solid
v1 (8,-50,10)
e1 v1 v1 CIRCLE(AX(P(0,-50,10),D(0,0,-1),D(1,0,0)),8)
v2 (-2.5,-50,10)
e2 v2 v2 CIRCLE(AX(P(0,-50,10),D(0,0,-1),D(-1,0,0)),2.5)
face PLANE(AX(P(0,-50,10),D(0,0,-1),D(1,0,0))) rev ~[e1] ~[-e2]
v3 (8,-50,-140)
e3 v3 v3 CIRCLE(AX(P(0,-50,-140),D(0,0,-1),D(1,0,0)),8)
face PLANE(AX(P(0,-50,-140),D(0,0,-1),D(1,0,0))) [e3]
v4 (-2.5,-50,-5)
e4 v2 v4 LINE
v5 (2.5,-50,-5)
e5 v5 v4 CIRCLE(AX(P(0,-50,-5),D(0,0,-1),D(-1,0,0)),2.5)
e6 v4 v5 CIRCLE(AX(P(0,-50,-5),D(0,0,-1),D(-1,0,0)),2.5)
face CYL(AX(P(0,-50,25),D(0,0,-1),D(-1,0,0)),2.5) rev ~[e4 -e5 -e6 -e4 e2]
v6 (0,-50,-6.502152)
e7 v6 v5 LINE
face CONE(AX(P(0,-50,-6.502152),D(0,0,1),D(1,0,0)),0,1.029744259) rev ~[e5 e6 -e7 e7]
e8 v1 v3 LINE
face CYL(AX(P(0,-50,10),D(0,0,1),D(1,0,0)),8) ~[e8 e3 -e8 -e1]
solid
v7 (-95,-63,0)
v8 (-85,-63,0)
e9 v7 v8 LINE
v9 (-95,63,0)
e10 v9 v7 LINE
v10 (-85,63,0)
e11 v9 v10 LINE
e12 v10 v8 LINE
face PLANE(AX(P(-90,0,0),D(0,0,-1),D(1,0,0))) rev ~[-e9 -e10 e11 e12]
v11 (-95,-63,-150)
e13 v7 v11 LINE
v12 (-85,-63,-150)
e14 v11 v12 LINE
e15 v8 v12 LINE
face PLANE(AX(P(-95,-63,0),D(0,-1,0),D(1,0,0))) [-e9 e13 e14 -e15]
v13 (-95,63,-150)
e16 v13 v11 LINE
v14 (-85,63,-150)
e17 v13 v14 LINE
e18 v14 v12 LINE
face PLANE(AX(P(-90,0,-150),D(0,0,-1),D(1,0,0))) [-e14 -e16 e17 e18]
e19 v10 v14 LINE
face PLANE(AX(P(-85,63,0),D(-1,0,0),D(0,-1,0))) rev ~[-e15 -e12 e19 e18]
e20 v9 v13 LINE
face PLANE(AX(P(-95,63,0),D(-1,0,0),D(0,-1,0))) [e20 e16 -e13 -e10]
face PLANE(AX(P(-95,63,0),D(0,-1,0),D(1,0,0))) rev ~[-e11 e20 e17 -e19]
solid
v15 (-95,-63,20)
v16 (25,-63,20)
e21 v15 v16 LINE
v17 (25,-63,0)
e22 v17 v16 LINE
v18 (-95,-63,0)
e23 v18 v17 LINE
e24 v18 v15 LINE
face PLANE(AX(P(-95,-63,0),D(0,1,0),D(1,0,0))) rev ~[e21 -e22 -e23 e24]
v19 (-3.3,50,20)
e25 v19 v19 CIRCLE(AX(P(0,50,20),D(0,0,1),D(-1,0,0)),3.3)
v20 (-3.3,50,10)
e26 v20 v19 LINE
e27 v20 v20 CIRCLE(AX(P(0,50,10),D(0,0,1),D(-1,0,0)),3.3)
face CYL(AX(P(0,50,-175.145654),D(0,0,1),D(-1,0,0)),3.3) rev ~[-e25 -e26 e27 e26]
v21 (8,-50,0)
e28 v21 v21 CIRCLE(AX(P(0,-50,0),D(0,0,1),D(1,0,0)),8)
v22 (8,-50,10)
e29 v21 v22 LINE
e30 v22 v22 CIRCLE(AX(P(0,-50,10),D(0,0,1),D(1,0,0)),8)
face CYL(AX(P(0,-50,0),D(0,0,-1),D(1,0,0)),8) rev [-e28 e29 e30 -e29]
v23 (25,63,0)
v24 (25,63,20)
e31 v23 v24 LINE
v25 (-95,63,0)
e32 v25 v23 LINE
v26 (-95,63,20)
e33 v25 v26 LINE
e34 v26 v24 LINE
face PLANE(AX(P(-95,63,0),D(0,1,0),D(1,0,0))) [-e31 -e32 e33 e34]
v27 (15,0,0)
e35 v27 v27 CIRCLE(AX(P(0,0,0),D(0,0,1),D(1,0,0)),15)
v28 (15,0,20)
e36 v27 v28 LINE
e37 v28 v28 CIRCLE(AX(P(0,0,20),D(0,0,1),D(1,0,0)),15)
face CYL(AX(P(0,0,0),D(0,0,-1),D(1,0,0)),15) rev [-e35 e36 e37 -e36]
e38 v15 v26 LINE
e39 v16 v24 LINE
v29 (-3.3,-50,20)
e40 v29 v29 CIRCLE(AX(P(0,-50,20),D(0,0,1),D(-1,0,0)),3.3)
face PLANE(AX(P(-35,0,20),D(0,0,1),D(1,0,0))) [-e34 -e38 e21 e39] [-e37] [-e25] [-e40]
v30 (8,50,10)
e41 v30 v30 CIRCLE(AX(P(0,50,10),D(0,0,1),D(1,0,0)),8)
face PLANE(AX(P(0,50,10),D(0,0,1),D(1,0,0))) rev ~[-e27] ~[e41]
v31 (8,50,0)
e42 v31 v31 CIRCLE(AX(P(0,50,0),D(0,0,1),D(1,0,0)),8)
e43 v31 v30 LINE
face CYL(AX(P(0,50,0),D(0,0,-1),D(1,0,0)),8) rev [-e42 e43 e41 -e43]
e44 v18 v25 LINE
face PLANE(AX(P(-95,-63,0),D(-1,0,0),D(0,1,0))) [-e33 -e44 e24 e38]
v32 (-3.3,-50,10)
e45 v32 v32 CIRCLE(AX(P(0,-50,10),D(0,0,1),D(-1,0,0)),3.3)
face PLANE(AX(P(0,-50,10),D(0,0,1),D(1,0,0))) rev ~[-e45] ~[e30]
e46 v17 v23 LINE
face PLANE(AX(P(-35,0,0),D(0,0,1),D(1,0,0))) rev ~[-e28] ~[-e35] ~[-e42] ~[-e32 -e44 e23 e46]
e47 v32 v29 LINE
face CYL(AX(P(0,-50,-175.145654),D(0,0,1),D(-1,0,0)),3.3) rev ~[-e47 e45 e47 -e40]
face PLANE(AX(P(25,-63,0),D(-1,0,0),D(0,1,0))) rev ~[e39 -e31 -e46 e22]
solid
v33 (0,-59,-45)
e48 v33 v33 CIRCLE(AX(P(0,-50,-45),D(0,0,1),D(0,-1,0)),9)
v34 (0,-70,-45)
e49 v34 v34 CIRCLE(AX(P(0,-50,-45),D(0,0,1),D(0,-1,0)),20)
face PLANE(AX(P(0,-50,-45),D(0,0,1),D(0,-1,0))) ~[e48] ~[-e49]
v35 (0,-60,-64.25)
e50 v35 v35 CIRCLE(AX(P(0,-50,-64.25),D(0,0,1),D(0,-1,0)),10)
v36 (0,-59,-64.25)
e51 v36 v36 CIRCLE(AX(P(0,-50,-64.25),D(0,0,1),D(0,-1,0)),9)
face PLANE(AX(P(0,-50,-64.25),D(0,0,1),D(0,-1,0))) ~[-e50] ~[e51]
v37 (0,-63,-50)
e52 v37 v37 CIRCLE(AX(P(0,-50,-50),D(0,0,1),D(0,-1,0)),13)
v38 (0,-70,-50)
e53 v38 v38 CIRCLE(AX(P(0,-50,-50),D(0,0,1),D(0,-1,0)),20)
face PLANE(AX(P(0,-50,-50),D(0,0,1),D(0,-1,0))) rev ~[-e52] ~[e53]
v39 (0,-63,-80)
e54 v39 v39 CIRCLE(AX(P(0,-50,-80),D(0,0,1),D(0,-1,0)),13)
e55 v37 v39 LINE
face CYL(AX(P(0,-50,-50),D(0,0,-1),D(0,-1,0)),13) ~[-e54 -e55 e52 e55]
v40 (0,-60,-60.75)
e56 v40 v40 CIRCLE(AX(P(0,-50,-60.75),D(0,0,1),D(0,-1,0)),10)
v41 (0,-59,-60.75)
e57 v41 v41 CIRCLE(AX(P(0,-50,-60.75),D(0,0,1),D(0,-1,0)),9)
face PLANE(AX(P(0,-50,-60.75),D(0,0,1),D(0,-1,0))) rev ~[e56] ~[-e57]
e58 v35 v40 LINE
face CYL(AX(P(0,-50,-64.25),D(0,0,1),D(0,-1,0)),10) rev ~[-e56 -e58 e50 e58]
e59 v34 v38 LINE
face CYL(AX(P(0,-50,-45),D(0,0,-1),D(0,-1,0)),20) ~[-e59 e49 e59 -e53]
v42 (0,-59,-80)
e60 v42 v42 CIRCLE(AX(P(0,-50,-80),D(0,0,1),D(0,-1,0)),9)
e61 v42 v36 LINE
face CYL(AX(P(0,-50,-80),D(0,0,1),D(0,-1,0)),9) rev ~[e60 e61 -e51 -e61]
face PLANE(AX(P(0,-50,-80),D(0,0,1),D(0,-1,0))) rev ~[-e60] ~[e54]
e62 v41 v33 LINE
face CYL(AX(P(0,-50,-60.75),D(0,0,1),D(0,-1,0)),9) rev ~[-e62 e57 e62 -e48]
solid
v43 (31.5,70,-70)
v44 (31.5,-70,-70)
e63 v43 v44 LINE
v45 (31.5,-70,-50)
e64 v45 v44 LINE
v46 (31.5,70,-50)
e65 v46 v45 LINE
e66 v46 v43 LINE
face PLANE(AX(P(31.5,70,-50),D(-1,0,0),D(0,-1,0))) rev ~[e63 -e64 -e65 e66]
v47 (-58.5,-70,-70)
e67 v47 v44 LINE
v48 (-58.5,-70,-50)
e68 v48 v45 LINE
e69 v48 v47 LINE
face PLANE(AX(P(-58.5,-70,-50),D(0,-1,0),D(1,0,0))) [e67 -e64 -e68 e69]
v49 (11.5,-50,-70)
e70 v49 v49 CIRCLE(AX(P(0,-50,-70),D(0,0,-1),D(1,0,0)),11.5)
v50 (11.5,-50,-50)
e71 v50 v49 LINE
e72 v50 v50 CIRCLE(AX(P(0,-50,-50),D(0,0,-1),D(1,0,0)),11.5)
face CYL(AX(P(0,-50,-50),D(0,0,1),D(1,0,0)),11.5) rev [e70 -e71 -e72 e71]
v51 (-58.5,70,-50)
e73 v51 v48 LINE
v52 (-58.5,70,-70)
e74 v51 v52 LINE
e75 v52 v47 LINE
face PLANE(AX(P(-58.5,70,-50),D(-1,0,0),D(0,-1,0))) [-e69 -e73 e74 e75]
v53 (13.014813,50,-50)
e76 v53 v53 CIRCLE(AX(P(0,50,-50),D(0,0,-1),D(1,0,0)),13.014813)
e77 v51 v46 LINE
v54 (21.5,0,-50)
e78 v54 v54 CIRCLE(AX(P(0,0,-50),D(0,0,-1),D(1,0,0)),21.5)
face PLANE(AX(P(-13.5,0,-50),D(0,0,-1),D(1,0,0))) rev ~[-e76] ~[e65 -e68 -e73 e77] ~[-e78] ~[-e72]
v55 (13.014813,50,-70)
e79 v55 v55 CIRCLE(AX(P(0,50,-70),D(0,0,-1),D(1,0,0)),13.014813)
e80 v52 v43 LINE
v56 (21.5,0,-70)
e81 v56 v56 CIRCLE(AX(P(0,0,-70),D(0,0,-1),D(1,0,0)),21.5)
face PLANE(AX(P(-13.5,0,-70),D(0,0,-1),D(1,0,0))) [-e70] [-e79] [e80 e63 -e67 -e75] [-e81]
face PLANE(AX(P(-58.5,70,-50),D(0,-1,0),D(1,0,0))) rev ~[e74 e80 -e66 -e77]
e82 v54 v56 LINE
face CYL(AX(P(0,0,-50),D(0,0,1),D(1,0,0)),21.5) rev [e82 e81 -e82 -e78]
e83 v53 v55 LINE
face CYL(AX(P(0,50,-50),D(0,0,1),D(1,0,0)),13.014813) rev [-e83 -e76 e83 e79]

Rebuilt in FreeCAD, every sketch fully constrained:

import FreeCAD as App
import Part
import Sketcher
Q = App.Units.Quantity


def add_polygon(sketch, points):
    """Adds a closed chain of lines whose ends are joined by coincident constraints."""
    first, n = sketch.GeometryCount, len(points)
    for a, b in zip(points, points[1:] + points[:1]):
        sketch.addGeometry(Part.LineSegment(App.Vector(*a, 0), App.Vector(*b, 0)), False)
    for i in range(n):
        sketch.addConstraint(Sketcher.Constraint("Coincident", first + i, 2, first + (i + 1) % n, 1))

doc = App.newDocument("Part")
body = doc.addObject("PartDesign::Body", "Body")

# Sketch on XY plane
sketch1 = body.newObject("Sketcher::SketchObject", "Sketch")
sketch1.AttachmentSupport = (doc.getObject("XY_Plane"), [""])
sketch1.MapMode = "FlatFace"
add_polygon(sketch1, [(-95, 63), (-95, -63), (25, -63), (25, 63)])  # lines 0-3
sketch1.addGeometry(Part.Circle(App.Vector(0, 0, 0), App.Vector(0, 0, 1), 15), False)  # 4
sketch1.addConstraint(Sketcher.Constraint("Vertical", 0))
sketch1.addConstraint(Sketcher.Constraint("Horizontal", 1))
sketch1.addConstraint(Sketcher.Constraint("Vertical", 2))
sketch1.addConstraint(Sketcher.Constraint("Horizontal", 3))
sketch1.addConstraint(Sketcher.Constraint("Coincident", 4, 3, -1, 1))
sketch1.addConstraint(Sketcher.Constraint("Diameter", 4, Q("30 mm")))
sketch1.addConstraint(Sketcher.Constraint("DistanceX", 1, 1, 1, 2, Q("120 mm")))
sketch1.addConstraint(Sketcher.Constraint("DistanceY", 0, 2, 0, 1, Q("126 mm")))
sketch1.addConstraint(Sketcher.Constraint("DistanceX", 0, 2, -1, 1, Q("95 mm")))
sketch1.addConstraint(Sketcher.Constraint("DistanceY", 0, 2, -1, 1, Q("63 mm")))
pad1 = body.newObject("PartDesign::Pad", "Pad")
pad1.Profile = sketch1
pad1.Length = 20

# Sketch on XY plane
sketch2 = body.newObject("Sketcher::SketchObject", "Sketch001")
sketch2.AttachmentSupport = (doc.getObject("XY_Plane"), [""])
sketch2.MapMode = "FlatFace"
sketch2.addGeometry(Part.Circle(App.Vector(0, -50, 0), App.Vector(0, 0, 1), 8), False)
sketch2.addGeometry(Part.Circle(App.Vector(0, 50, 0), App.Vector(0, 0, 1), 8), False)
sketch2.addConstraint(Sketcher.Constraint("Equal", 0, 1))
sketch2.addConstraint(Sketcher.Constraint("Symmetric", 0, 3, 1, 3, -1, 1))
sketch2.addConstraint(Sketcher.Constraint("PointOnObject", 0, 3, -2))
sketch2.addConstraint(Sketcher.Constraint("Diameter", 0, Q("16 mm")))
sketch2.addConstraint(Sketcher.Constraint("DistanceY", 0, 3, -1, 1, Q("50 mm")))
pocket1 = body.newObject("PartDesign::Pocket", "Pocket")
pocket1.Profile = sketch2
pocket1.Length = 10
pocket1.Reversed = True

# Sketch on XY plane
sketch3 = body.newObject("Sketcher::SketchObject", "Sketch002")
sketch3.AttachmentSupport = (doc.getObject("XY_Plane"), [""])
sketch3.MapMode = "FlatFace"
sketch3.addGeometry(Part.Circle(App.Vector(0, -50, 0), App.Vector(0, 0, 1), 3.3), False)
sketch3.addGeometry(Part.Circle(App.Vector(0, 50, 0), App.Vector(0, 0, 1), 3.3), False)
sketch3.addConstraint(Sketcher.Constraint("Equal", 0, 1))
sketch3.addConstraint(Sketcher.Constraint("Symmetric", 0, 3, 1, 3, -1, 1))
sketch3.addConstraint(Sketcher.Constraint("PointOnObject", 0, 3, -2))
sketch3.addConstraint(Sketcher.Constraint("Diameter", 0, Q("6.6 mm")))
sketch3.addConstraint(Sketcher.Constraint("DistanceY", 0, 3, -1, 1, Q("50 mm")))
doc.recompute()
hole = body.newObject("PartDesign::Hole", "Hole")
hole.Profile = sketch3
hole.ThreadType = "None"
hole.Diameter = 6.6
hole.DepthType = "ThroughAll"
hole.Reversed = True
body2 = doc.addObject("PartDesign::Body", "Body001")

# Sketch on XY plane
sketch4 = body2.newObject("Sketcher::SketchObject", "Sketch003")
sketch4.AttachmentSupport = (doc.getObject("XY_Plane001"), [""])
sketch4.MapMode = "FlatFace"
sketch4.AttachmentOffset = App.Placement(App.Vector(0, 0, 10), App.Rotation())
sketch4.addGeometry(Part.Circle(App.Vector(0, -50, 0), App.Vector(0, 0, 1), 8), False)
sketch4.addConstraint(Sketcher.Constraint("PointOnObject", 0, 3, -2))
sketch4.addConstraint(Sketcher.Constraint("Diameter", 0, Q("16 mm")))
sketch4.addConstraint(Sketcher.Constraint("DistanceY", 0, 3, -1, 1, Q("50 mm")))
pad2 = body2.newObject("PartDesign::Pad", "Pad001")
pad2.Profile = sketch4
pad2.Length = 150
pad2.Reversed = True

# Sketch on XY plane
sketch5 = body2.newObject("Sketcher::SketchObject", "Sketch004")
sketch5.AttachmentSupport = (doc.getObject("XY_Plane001"), [""])
sketch5.MapMode = "FlatFace"
sketch5.AttachmentOffset = App.Placement(App.Vector(0, 0, 10), App.Rotation())
sketch5.addGeometry(Part.Circle(App.Vector(0, -50, 0), App.Vector(0, 0, 1), 2.5), False)
sketch5.addConstraint(Sketcher.Constraint("PointOnObject", 0, 3, -2))
sketch5.addConstraint(Sketcher.Constraint("Diameter", 0, Q("5 mm")))
sketch5.addConstraint(Sketcher.Constraint("DistanceY", 0, 3, -1, 1, Q("50 mm")))
doc.recompute()
hole2 = body2.newObject("PartDesign::Hole", "Hole001")
hole2.Profile = sketch5
hole2.ThreadType = "None"
hole2.Diameter = 5
hole2.DepthType = "Dimension"
hole2.Depth = 15
hole2.DrillPoint = "Angled"
hole2.DrillPointAngle = 118
body3 = doc.addObject("PartDesign::Body", "Body002")

# Sketch on XY plane
sketch6 = body3.newObject("Sketcher::SketchObject", "Sketch005")
sketch6.AttachmentSupport = (doc.getObject("XY_Plane002"), [""])
sketch6.MapMode = "FlatFace"
add_polygon(sketch6, [(-95, -63), (-95, 63), (-85, 63), (-85, -63)])  # lines 0-3
sketch6.addConstraint(Sketcher.Constraint("Vertical", 0))
sketch6.addConstraint(Sketcher.Constraint("Horizontal", 1))
sketch6.addConstraint(Sketcher.Constraint("Vertical", 2))
sketch6.addConstraint(Sketcher.Constraint("Horizontal", 3))
sketch6.addConstraint(Sketcher.Constraint("DistanceX", 1, 1, 1, 2, Q("10 mm")))
sketch6.addConstraint(Sketcher.Constraint("DistanceY", 0, 1, 0, 2, Q("126 mm")))
sketch6.addConstraint(Sketcher.Constraint("DistanceX", 0, 2, -1, 1, Q("95 mm")))
sketch6.addConstraint(Sketcher.Constraint("DistanceY", -1, 1, 0, 2, Q("63 mm")))
pad3 = body3.newObject("PartDesign::Pad", "Pad002")
pad3.Profile = sketch6
pad3.Length = 150
pad3.Reversed = True
body4 = doc.addObject("PartDesign::Body", "Body003")

# Sketch on XY plane
sketch7 = body4.newObject("Sketcher::SketchObject", "Sketch006")
sketch7.AttachmentSupport = (doc.getObject("XY_Plane003"), [""])
sketch7.MapMode = "FlatFace"
sketch7.AttachmentOffset = App.Placement(App.Vector(0, 0, -50), App.Rotation())
add_polygon(sketch7, [(-58.5, -70), (-58.5, 70), (31.5, 70), (31.5, -70)])  # lines 0-3
sketch7.addGeometry(Part.Circle(App.Vector(0, 50, 0), App.Vector(0, 0, 1), 13.014813), False)  # 4
sketch7.addGeometry(Part.Circle(App.Vector(0, 0, 0), App.Vector(0, 0, 1), 21.5), False)  # 5
sketch7.addGeometry(Part.Circle(App.Vector(0, -50, 0), App.Vector(0, 0, 1), 11.5), False)  # 6
sketch7.addConstraint(Sketcher.Constraint("Vertical", 0))
sketch7.addConstraint(Sketcher.Constraint("Horizontal", 1))
sketch7.addConstraint(Sketcher.Constraint("Vertical", 2))
sketch7.addConstraint(Sketcher.Constraint("Horizontal", 3))
sketch7.addConstraint(Sketcher.Constraint("Coincident", 5, 3, -1, 1))
sketch7.addConstraint(Sketcher.Constraint("Symmetric", 4, 3, 6, 3, -1, 1))
sketch7.addConstraint(Sketcher.Constraint("PointOnObject", 4, 3, -2))
sketch7.addConstraint(Sketcher.Constraint("Diameter", 5, Q("43 mm")))
sketch7.addConstraint(Sketcher.Constraint("Diameter", 6, Q("23 mm")))
sketch7.addConstraint(Sketcher.Constraint("DistanceX", 1, 1, 1, 2, Q("90 mm")))
sketch7.addConstraint(Sketcher.Constraint("DistanceY", 0, 1, 0, 2, Q("140 mm")))
sketch7.addConstraint(Sketcher.Constraint("DistanceY", -1, 1, 4, 3, Q("50 mm")))
sketch7.addConstraint(Sketcher.Constraint("DistanceY", -1, 1, 0, 2, Q("70 mm")))
sketch7.addConstraint(Sketcher.Constraint("DistanceX", 0, 2, -1, 1, Q("58.5 mm")))
sketch7.addConstraint(Sketcher.Constraint("Diameter", 4, Q("26.029627 mm")))
pad4 = body4.newObject("PartDesign::Pad", "Pad003")
pad4.Profile = sketch7
pad4.Length = 20
pad4.Reversed = True
body5 = doc.addObject("PartDesign::Body", "Body004")

# Sketch on YZ plane
sketch8 = body5.newObject("Sketcher::SketchObject", "Sketch007")
sketch8.AttachmentSupport = (doc.getObject("YZ_Plane004"), [""])
sketch8.MapMode = "FlatFace"
add_polygon(sketch8, [(-63, -50), (-63, -80), (-59, -80), (-59, -64.25), (-60, -64.25), (-60, -60.75), (-59, -60.75), (-59, -45), (-70, -45), (-70, -50)])  # lines 0-9
sketch8.addGeometry(Part.LineSegment(App.Vector(-50, -80, 0), App.Vector(-50, -45, 0)), True)  # axis
sketch8.addConstraint(Sketcher.Constraint("Vertical", 0))
sketch8.addConstraint(Sketcher.Constraint("Horizontal", 1))
sketch8.addConstraint(Sketcher.Constraint("Vertical", 2))
sketch8.addConstraint(Sketcher.Constraint("Horizontal", 3))
sketch8.addConstraint(Sketcher.Constraint("Vertical", 4))
sketch8.addConstraint(Sketcher.Constraint("Horizontal", 5))
sketch8.addConstraint(Sketcher.Constraint("Vertical", 6))
sketch8.addConstraint(Sketcher.Constraint("Horizontal", 7))
sketch8.addConstraint(Sketcher.Constraint("Vertical", 8))
sketch8.addConstraint(Sketcher.Constraint("Horizontal", 9))
sketch8.addConstraint(Sketcher.Constraint("Vertical", 10))
sketch8.addConstraint(Sketcher.Constraint("Horizontal", 1, 2, 10, 1))
sketch8.addConstraint(Sketcher.Constraint("Horizontal", 7, 2, 10, 2))
sketch8.addConstraint(Sketcher.Constraint("Vertical", 2, 2, 5, 2))
sketch8.addConstraint(Sketcher.Constraint("Equal", 2, 6))
sketch8.addConstraint(Sketcher.Constraint("DistanceX", 1, 1, 1, 2, Q("4 mm")))
sketch8.addConstraint(Sketcher.Constraint("DistanceX", 3, 2, 3, 1, Q("1 mm")))
sketch8.addConstraint(Sketcher.Constraint("DistanceX", 7, 2, 7, 1, Q("11 mm")))
sketch8.addConstraint(Sketcher.Constraint("DistanceY", 0, 2, 0, 1, Q("30 mm")))
sketch8.addConstraint(Sketcher.Constraint("DistanceY", 8, 2, 8, 1, Q("5 mm")))
sketch8.addConstraint(Sketcher.Constraint("DistanceY", 4, 1, 4, 2, Q("3.5 mm")))
sketch8.addConstraint(Sketcher.Constraint("DistanceX", 0, 2, -1, 1, Q("63 mm")))
sketch8.addConstraint(Sketcher.Constraint("DistanceY", 0, 2, -1, 1, Q("80 mm")))
sketch8.addConstraint(Sketcher.Constraint("DistanceX", 10, 1, -1, 1, Q("50 mm")))
revolution = body5.newObject("PartDesign::Revolution", "Revolution")
revolution.Profile = sketch8
revolution.ReferenceAxis = (sketch8, ["Axis0"])
revolution.Angle = 360

doc.recompute()
